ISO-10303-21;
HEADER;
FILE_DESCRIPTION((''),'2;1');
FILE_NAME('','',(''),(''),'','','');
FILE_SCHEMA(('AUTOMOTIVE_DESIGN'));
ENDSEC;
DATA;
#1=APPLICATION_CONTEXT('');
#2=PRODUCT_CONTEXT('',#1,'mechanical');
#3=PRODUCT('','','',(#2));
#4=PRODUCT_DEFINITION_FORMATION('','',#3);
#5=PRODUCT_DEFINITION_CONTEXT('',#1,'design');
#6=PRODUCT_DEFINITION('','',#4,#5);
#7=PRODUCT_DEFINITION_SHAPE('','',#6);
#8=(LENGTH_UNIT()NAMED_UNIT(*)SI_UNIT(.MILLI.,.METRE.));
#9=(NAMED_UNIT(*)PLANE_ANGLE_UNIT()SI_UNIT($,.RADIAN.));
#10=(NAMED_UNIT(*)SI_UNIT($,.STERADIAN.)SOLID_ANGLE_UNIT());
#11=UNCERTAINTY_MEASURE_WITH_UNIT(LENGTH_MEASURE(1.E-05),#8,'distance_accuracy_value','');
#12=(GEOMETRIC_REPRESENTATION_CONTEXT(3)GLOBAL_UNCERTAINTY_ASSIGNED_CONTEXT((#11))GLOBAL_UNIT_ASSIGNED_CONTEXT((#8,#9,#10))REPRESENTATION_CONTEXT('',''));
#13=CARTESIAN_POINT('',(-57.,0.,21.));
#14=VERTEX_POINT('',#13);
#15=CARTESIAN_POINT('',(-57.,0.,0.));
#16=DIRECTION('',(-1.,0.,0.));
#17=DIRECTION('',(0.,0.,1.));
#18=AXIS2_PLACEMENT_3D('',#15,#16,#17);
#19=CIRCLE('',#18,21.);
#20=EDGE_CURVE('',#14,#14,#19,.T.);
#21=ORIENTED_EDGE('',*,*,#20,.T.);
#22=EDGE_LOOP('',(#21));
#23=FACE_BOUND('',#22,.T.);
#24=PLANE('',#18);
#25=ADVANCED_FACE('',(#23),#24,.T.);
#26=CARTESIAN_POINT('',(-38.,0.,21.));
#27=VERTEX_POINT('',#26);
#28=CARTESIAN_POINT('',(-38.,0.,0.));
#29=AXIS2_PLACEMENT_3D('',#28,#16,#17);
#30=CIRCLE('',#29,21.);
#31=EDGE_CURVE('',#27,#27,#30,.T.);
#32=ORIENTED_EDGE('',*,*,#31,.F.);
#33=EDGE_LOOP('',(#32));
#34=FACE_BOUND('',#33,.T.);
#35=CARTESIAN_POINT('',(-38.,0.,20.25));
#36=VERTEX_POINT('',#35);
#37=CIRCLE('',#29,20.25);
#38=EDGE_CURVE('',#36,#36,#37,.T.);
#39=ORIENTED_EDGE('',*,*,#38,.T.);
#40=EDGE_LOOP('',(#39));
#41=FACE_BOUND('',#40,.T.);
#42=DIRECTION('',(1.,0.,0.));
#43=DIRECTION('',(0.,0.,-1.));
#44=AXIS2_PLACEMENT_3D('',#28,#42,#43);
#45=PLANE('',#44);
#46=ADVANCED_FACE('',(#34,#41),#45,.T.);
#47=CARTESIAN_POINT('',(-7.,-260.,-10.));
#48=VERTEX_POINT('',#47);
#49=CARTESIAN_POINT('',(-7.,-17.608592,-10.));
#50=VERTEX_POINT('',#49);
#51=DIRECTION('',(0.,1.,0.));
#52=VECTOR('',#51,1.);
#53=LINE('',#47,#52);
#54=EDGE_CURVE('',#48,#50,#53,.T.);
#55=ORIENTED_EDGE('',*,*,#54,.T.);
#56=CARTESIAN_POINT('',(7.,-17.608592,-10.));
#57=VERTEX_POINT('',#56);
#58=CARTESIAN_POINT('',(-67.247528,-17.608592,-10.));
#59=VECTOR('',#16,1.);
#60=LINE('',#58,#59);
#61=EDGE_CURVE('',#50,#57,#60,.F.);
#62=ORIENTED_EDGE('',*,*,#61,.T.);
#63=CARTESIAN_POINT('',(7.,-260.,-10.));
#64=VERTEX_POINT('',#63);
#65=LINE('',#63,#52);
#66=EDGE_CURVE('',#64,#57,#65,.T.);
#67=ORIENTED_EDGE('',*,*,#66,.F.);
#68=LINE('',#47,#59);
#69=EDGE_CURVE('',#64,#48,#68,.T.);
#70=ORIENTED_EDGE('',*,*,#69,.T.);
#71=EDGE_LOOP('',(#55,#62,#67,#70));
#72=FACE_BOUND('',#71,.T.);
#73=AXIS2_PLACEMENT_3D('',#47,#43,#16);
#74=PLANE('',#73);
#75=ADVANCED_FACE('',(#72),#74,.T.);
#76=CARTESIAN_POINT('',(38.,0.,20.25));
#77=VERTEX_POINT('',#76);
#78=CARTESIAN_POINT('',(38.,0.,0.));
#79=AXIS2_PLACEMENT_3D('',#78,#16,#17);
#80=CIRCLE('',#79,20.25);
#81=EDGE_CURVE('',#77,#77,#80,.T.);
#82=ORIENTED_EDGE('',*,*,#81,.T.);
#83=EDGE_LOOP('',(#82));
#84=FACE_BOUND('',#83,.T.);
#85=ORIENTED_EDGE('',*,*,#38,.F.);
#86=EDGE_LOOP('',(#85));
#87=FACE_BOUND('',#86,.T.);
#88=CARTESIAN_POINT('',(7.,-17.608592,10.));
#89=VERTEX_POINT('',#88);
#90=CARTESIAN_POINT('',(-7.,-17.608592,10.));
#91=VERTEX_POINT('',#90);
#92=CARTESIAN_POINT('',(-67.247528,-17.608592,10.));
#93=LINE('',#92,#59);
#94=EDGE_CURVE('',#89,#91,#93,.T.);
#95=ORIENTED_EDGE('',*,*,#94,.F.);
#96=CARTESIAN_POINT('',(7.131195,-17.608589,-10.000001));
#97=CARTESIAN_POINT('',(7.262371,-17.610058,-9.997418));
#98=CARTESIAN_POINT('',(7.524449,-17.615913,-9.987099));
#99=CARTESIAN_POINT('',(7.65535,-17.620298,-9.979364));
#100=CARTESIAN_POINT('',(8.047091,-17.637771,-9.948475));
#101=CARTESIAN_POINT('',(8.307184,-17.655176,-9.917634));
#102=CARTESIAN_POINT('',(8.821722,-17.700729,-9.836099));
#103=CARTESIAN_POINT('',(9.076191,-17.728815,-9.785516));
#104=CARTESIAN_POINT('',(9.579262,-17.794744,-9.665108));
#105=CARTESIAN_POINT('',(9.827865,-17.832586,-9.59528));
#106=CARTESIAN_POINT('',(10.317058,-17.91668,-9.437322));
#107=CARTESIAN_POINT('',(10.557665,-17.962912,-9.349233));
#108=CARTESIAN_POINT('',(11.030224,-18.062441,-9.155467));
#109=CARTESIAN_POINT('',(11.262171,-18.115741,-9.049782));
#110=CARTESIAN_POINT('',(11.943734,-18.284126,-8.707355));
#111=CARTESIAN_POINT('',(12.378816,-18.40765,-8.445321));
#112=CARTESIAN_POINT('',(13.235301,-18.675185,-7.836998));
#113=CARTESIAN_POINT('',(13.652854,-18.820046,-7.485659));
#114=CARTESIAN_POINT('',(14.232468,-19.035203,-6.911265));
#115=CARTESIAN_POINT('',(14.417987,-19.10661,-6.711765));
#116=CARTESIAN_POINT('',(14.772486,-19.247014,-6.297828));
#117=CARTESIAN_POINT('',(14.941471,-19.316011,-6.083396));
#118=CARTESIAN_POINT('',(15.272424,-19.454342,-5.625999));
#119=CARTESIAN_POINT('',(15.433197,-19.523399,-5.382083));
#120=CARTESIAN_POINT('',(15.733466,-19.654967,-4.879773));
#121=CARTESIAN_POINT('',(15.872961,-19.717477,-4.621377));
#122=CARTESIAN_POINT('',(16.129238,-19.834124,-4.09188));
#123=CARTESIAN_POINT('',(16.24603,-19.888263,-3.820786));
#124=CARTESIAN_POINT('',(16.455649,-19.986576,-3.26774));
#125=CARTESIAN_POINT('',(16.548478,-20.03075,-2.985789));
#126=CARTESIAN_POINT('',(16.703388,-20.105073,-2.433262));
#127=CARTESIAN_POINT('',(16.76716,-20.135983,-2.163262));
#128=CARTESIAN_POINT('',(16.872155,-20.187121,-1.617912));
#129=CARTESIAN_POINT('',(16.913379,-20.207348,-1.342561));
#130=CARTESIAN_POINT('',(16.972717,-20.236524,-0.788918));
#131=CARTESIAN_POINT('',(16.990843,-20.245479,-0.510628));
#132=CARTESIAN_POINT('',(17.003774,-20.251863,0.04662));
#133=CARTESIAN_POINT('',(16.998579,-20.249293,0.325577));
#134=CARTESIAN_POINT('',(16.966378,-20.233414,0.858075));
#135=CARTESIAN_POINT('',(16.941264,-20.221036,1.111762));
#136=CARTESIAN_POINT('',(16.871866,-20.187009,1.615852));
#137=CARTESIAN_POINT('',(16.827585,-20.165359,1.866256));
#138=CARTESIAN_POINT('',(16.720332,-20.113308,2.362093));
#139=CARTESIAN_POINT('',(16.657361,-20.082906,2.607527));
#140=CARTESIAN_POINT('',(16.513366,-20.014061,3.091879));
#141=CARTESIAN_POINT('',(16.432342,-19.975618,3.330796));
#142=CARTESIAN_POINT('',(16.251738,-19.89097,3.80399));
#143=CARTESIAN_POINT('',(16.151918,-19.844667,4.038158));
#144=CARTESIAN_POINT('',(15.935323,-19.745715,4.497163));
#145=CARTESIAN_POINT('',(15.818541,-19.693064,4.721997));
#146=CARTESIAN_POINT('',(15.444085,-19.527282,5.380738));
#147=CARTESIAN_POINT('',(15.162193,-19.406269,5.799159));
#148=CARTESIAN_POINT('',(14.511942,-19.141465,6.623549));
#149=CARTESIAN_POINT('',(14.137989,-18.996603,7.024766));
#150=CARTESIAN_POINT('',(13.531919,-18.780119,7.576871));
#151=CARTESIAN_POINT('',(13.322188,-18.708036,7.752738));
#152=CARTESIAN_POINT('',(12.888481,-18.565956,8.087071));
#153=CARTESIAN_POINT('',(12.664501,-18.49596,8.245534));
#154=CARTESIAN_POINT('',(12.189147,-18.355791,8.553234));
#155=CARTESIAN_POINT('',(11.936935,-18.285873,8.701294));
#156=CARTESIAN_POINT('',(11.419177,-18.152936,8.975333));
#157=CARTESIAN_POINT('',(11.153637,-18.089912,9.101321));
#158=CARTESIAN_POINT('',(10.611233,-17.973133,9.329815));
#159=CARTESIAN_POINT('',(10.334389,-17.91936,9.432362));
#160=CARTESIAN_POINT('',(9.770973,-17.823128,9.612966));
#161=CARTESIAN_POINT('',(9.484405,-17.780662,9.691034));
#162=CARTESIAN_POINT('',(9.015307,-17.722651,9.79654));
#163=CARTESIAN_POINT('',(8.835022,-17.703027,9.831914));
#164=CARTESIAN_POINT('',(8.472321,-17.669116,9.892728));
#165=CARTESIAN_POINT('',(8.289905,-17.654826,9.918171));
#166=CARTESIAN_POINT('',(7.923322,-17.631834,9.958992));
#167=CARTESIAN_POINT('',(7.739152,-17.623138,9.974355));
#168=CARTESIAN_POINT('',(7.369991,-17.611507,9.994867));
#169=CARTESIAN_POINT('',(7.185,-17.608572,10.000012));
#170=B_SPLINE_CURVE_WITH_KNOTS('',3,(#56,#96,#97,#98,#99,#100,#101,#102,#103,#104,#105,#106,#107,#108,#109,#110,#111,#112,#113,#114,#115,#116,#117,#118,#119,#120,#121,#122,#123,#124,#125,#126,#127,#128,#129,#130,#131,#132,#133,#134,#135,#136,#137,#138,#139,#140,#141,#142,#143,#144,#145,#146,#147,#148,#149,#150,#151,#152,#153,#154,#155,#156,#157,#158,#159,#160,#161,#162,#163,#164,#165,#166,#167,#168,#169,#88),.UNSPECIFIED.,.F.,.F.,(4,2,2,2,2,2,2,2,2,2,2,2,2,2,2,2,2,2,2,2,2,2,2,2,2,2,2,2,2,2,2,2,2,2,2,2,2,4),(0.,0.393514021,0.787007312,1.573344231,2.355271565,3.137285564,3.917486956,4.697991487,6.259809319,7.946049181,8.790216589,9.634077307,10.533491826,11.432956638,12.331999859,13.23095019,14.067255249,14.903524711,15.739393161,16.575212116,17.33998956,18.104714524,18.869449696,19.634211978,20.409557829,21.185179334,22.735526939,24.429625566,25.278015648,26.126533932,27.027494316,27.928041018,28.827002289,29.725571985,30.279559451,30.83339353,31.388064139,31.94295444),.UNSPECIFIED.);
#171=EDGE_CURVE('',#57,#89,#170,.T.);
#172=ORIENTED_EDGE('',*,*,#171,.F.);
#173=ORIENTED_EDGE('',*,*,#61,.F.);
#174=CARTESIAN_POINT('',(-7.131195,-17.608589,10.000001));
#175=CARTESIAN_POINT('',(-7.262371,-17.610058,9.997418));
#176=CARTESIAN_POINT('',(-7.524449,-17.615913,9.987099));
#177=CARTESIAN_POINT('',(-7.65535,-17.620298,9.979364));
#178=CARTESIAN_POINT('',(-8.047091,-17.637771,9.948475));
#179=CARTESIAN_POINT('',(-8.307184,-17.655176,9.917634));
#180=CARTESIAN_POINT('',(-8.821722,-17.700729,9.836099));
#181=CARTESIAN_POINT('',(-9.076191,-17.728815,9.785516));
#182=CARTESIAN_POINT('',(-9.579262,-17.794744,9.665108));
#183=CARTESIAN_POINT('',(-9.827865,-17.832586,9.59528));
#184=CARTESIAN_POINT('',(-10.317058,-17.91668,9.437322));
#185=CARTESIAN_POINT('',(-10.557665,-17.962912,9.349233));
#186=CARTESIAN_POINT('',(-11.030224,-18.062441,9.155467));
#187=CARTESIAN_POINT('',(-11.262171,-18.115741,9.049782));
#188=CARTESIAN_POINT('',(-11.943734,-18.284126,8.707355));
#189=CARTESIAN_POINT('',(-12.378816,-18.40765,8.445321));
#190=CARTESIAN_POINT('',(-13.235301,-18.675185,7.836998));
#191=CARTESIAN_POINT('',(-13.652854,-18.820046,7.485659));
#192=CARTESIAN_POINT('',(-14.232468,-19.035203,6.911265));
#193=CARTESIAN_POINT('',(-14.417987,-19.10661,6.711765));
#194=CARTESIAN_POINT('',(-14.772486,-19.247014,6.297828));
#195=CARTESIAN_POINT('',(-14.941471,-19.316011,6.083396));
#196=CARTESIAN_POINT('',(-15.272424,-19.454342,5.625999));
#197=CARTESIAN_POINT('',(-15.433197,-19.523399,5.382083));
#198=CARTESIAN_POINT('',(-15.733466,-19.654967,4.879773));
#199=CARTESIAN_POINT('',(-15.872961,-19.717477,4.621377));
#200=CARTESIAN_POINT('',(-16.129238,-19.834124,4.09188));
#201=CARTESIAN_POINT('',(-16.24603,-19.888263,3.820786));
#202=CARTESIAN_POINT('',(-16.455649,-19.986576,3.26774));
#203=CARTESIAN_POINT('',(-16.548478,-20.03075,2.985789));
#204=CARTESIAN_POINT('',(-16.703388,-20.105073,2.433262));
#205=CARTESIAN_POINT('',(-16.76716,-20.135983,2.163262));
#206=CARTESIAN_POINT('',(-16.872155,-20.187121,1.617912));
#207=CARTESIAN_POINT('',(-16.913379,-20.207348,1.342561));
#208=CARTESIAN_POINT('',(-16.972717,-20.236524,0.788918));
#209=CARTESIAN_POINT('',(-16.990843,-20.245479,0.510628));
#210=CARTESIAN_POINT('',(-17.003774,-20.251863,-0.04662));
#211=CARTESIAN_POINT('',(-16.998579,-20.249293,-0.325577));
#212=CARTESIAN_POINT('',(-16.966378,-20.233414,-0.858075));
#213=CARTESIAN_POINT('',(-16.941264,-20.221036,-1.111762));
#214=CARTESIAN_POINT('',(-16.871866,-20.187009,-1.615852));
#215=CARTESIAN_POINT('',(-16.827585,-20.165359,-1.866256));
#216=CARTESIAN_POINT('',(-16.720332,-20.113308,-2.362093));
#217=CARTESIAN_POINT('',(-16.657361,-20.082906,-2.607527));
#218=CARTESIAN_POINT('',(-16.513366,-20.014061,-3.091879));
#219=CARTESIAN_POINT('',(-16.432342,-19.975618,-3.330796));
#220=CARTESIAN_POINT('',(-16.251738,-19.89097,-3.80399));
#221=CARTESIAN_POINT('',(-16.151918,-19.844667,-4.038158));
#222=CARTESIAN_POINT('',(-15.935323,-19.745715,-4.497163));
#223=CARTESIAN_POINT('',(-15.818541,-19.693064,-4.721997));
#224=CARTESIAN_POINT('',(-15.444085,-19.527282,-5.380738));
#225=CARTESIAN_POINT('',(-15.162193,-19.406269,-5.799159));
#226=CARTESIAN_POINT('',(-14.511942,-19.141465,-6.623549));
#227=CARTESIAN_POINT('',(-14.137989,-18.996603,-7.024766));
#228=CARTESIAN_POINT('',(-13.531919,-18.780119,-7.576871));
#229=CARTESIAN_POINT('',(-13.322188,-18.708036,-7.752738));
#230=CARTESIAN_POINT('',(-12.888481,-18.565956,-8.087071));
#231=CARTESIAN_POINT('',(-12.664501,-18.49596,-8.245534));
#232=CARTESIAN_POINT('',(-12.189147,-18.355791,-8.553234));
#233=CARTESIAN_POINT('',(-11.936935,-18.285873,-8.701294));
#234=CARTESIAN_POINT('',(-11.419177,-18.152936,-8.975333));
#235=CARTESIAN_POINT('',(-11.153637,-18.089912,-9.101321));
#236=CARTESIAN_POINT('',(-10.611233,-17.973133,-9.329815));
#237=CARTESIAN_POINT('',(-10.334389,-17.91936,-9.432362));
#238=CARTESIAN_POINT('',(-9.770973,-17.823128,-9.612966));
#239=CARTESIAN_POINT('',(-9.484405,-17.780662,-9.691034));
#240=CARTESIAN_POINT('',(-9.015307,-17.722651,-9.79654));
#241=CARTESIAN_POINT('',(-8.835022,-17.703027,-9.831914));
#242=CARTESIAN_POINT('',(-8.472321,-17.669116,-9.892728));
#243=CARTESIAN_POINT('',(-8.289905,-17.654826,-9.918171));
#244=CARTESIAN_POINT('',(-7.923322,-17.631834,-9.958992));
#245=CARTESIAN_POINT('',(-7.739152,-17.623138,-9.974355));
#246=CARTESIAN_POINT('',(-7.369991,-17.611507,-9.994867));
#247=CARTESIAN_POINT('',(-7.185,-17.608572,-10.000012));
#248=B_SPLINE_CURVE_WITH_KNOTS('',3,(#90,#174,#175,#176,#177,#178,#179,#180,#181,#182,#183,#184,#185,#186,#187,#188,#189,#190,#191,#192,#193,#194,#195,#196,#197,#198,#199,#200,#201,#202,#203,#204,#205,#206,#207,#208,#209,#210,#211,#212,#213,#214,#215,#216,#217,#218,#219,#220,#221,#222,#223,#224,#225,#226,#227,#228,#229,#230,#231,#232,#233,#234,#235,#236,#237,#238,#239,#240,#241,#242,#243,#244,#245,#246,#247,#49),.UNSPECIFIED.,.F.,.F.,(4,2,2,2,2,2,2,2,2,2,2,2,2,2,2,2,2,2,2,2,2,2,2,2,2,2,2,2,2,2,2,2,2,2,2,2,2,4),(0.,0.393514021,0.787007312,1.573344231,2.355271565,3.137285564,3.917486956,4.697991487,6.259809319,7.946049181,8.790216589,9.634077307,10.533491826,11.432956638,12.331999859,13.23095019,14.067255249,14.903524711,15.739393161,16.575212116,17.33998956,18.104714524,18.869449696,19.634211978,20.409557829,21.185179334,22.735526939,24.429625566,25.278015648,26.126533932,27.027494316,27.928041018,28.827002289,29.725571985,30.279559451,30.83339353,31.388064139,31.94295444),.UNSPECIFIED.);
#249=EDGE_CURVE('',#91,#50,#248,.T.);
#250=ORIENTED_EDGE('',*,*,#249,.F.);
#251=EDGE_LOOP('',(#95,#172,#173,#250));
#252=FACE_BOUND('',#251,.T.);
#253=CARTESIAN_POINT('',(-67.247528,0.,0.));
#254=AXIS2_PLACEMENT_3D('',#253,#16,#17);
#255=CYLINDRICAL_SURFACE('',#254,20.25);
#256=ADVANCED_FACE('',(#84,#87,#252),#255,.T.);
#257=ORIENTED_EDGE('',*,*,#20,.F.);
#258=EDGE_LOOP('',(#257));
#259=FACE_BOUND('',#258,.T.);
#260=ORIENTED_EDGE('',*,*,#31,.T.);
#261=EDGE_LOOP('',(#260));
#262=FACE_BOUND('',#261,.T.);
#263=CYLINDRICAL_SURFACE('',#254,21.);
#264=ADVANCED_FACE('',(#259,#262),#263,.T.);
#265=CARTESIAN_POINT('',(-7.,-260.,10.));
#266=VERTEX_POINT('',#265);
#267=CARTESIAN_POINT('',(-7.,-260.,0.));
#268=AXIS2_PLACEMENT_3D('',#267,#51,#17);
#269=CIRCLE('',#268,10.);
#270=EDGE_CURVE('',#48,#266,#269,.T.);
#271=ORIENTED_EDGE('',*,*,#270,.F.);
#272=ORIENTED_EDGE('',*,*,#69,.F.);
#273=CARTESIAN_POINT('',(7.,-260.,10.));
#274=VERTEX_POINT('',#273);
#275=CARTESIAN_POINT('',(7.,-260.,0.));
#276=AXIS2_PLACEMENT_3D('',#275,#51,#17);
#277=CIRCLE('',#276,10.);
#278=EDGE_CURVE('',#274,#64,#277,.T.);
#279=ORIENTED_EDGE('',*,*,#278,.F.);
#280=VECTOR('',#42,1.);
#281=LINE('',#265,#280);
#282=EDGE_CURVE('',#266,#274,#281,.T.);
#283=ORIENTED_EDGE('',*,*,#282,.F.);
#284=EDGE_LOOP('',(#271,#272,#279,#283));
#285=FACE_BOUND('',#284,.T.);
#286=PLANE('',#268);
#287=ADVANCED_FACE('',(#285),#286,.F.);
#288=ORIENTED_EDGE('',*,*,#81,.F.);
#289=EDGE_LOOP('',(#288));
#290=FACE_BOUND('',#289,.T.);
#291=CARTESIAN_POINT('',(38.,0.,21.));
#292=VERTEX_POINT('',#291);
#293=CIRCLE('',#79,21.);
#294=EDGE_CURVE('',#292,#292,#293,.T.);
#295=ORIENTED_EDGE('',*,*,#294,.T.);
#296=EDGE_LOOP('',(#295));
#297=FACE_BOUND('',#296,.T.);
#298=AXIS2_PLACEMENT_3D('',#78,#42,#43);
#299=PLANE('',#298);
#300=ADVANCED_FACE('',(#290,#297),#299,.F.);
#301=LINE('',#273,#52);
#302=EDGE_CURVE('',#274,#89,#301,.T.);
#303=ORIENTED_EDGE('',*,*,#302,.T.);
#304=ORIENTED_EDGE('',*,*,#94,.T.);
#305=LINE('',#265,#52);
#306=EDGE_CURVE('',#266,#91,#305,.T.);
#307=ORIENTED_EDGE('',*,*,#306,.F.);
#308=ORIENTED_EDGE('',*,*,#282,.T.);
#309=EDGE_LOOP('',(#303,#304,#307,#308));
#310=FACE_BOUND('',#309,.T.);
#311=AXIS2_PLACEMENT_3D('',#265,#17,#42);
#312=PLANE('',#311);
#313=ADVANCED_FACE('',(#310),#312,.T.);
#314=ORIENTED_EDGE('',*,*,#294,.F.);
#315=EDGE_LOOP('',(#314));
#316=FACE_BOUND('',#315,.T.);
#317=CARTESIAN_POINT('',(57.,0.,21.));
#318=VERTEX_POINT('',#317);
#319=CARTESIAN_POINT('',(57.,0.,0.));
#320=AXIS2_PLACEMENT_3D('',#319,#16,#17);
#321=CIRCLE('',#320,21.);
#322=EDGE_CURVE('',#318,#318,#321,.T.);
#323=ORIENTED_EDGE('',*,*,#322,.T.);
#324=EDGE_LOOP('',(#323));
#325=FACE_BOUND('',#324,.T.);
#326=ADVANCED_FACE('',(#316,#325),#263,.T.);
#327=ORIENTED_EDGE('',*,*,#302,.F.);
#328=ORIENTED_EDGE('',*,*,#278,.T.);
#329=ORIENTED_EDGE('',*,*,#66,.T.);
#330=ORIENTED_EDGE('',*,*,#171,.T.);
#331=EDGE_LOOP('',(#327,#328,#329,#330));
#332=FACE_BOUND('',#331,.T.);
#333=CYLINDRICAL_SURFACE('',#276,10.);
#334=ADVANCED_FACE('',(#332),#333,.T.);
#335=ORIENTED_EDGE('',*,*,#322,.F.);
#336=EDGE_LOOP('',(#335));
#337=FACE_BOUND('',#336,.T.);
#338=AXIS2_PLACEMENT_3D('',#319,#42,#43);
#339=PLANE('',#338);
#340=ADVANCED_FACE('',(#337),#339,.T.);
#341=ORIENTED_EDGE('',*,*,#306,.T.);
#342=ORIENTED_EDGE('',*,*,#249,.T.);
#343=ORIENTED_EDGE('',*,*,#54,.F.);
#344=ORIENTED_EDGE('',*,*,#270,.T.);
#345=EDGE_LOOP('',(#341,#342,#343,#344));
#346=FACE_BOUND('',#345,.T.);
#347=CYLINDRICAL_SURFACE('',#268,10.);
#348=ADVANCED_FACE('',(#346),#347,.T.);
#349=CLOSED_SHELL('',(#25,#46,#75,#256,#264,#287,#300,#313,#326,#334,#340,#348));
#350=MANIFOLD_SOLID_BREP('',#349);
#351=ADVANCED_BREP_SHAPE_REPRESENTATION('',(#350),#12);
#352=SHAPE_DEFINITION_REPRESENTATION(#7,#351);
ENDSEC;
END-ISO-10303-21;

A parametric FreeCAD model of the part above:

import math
import FreeCAD as App
import Part
import Sketcher
from FreeCAD import Vector
Q = App.Units.Quantity

doc = App.newDocument("Part")
body = doc.addObject("PartDesign::Body", "Body")

sketch1 = body.newObject("Sketcher::SketchObject", "Sketch")
sketch1.AttachmentSupport = (doc.getObject("XY_Plane"), [""])
sketch1.MapMode = "FlatFace"
sketch1.addGeometry([
    Part.LineSegment(Vector(38, 20.2, 0), Vector(-38, 20.2, 0)),
    Part.LineSegment(Vector(-38, 20.2, 0), Vector(-38, 21, 0)),
    Part.LineSegment(Vector(-38, 21, 0), Vector(-57, 21, 0)),
    Part.LineSegment(Vector(-57, 21, 0), Vector(-57, 0, 0)),
    Part.LineSegment(Vector(-57, 0, 0), Vector(57, 0, 0)),
    Part.LineSegment(Vector(57, 0, 0), Vector(57, 21, 0)),
    Part.LineSegment(Vector(57, 21, 0), Vector(38, 21, 0)),
    Part.LineSegment(Vector(38, 21, 0), Vector(38, 20.2, 0)),
], False)
sketch1.addConstraint([
    Sketcher.Constraint("Coincident", 0, 2, 1, 1),
    Sketcher.Constraint("Coincident", 1, 2, 2, 1),
    Sketcher.Constraint("Coincident", 2, 2, 3, 1),
    Sketcher.Constraint("Coincident", 3, 2, 4, 1),
    Sketcher.Constraint("Coincident", 4, 2, 5, 1),
    Sketcher.Constraint("Coincident", 5, 2, 6, 1),
    Sketcher.Constraint("Coincident", 6, 2, 7, 1),
    Sketcher.Constraint("Coincident", 7, 2, 0, 1),
    Sketcher.Constraint("Horizontal", 0),
    Sketcher.Constraint("Vertical", 1),
    Sketcher.Constraint("Horizontal", 2),
    Sketcher.Constraint("Vertical", 3),
    Sketcher.Constraint("Horizontal", 4),
    Sketcher.Constraint("Vertical", 5),
    Sketcher.Constraint("Horizontal", 6),
    Sketcher.Constraint("Vertical", 7),
    Sketcher.Constraint("Symmetric", 3, 2, 4, 2, -1, 1),
    Sketcher.Constraint("Symmetric", 1, 2, 6, 2, -2),
    Sketcher.Constraint("DistanceX", 0, 2, 0, 1, Q("76 mm")),
    Sketcher.Constraint("DistanceX", 2, 2, 2, 1, Q("19 mm")),
    Sketcher.Constraint("DistanceY", 3, 2, 3, 1, Q("21 mm")),
    Sketcher.Constraint("DistanceY", 1, 1, 1, 2, Q("0.75 mm")),
])
revolution = body.newObject("PartDesign::Revolution", "Revolution")
revolution.Profile = sketch1
revolution.ReferenceAxis = (sketch1, ["H_Axis"])
revolution.Angle = 360

sketch2 = body.newObject("Sketcher::SketchObject", "Sketch001")
sketch2.AttachmentSupport = (doc.getObject("XZ_Plane"), [""])
sketch2.MapMode = "FlatFace"
sketch2.addGeometry([
    Part.LineSegment(Vector(7, -10, 0), Vector(-7, -10, 0)),
    Part.ArcOfCircle(Part.Circle(Vector(-7, 0, 0), Vector(0, 0, 1), 10), math.radians(90), math.radians(270)),
    Part.LineSegment(Vector(-7, 10, 0), Vector(7, 10, 0)),
    Part.ArcOfCircle(Part.Circle(Vector(7, 0, 0), Vector(0, 0, 1), 10), math.radians(-90), math.radians(90)),
], False)
sketch2.addConstraint([
    Sketcher.Constraint("Tangent", 0, 2, 1, 2),
    Sketcher.Constraint("Tangent", 1, 1, 2, 1),
    Sketcher.Constraint("Tangent", 2, 2, 3, 2),
    Sketcher.Constraint("Tangent", 3, 1, 0, 1),
    Sketcher.Constraint("Horizontal", 0),
    Sketcher.Constraint("Horizontal", 2),
    Sketcher.Constraint("Symmetric", 1, 3, 3, 3, -1, 1),
    Sketcher.Constraint("Radius", 1, Q("10 mm")),
    Sketcher.Constraint("DistanceX", 0, 2, 0, 1, Q("14 mm")),
])
pad1 = body.newObject("PartDesign::Pad", "Pad")
pad1.Profile = sketch2
pad1.Length = 260

doc.recompute()
